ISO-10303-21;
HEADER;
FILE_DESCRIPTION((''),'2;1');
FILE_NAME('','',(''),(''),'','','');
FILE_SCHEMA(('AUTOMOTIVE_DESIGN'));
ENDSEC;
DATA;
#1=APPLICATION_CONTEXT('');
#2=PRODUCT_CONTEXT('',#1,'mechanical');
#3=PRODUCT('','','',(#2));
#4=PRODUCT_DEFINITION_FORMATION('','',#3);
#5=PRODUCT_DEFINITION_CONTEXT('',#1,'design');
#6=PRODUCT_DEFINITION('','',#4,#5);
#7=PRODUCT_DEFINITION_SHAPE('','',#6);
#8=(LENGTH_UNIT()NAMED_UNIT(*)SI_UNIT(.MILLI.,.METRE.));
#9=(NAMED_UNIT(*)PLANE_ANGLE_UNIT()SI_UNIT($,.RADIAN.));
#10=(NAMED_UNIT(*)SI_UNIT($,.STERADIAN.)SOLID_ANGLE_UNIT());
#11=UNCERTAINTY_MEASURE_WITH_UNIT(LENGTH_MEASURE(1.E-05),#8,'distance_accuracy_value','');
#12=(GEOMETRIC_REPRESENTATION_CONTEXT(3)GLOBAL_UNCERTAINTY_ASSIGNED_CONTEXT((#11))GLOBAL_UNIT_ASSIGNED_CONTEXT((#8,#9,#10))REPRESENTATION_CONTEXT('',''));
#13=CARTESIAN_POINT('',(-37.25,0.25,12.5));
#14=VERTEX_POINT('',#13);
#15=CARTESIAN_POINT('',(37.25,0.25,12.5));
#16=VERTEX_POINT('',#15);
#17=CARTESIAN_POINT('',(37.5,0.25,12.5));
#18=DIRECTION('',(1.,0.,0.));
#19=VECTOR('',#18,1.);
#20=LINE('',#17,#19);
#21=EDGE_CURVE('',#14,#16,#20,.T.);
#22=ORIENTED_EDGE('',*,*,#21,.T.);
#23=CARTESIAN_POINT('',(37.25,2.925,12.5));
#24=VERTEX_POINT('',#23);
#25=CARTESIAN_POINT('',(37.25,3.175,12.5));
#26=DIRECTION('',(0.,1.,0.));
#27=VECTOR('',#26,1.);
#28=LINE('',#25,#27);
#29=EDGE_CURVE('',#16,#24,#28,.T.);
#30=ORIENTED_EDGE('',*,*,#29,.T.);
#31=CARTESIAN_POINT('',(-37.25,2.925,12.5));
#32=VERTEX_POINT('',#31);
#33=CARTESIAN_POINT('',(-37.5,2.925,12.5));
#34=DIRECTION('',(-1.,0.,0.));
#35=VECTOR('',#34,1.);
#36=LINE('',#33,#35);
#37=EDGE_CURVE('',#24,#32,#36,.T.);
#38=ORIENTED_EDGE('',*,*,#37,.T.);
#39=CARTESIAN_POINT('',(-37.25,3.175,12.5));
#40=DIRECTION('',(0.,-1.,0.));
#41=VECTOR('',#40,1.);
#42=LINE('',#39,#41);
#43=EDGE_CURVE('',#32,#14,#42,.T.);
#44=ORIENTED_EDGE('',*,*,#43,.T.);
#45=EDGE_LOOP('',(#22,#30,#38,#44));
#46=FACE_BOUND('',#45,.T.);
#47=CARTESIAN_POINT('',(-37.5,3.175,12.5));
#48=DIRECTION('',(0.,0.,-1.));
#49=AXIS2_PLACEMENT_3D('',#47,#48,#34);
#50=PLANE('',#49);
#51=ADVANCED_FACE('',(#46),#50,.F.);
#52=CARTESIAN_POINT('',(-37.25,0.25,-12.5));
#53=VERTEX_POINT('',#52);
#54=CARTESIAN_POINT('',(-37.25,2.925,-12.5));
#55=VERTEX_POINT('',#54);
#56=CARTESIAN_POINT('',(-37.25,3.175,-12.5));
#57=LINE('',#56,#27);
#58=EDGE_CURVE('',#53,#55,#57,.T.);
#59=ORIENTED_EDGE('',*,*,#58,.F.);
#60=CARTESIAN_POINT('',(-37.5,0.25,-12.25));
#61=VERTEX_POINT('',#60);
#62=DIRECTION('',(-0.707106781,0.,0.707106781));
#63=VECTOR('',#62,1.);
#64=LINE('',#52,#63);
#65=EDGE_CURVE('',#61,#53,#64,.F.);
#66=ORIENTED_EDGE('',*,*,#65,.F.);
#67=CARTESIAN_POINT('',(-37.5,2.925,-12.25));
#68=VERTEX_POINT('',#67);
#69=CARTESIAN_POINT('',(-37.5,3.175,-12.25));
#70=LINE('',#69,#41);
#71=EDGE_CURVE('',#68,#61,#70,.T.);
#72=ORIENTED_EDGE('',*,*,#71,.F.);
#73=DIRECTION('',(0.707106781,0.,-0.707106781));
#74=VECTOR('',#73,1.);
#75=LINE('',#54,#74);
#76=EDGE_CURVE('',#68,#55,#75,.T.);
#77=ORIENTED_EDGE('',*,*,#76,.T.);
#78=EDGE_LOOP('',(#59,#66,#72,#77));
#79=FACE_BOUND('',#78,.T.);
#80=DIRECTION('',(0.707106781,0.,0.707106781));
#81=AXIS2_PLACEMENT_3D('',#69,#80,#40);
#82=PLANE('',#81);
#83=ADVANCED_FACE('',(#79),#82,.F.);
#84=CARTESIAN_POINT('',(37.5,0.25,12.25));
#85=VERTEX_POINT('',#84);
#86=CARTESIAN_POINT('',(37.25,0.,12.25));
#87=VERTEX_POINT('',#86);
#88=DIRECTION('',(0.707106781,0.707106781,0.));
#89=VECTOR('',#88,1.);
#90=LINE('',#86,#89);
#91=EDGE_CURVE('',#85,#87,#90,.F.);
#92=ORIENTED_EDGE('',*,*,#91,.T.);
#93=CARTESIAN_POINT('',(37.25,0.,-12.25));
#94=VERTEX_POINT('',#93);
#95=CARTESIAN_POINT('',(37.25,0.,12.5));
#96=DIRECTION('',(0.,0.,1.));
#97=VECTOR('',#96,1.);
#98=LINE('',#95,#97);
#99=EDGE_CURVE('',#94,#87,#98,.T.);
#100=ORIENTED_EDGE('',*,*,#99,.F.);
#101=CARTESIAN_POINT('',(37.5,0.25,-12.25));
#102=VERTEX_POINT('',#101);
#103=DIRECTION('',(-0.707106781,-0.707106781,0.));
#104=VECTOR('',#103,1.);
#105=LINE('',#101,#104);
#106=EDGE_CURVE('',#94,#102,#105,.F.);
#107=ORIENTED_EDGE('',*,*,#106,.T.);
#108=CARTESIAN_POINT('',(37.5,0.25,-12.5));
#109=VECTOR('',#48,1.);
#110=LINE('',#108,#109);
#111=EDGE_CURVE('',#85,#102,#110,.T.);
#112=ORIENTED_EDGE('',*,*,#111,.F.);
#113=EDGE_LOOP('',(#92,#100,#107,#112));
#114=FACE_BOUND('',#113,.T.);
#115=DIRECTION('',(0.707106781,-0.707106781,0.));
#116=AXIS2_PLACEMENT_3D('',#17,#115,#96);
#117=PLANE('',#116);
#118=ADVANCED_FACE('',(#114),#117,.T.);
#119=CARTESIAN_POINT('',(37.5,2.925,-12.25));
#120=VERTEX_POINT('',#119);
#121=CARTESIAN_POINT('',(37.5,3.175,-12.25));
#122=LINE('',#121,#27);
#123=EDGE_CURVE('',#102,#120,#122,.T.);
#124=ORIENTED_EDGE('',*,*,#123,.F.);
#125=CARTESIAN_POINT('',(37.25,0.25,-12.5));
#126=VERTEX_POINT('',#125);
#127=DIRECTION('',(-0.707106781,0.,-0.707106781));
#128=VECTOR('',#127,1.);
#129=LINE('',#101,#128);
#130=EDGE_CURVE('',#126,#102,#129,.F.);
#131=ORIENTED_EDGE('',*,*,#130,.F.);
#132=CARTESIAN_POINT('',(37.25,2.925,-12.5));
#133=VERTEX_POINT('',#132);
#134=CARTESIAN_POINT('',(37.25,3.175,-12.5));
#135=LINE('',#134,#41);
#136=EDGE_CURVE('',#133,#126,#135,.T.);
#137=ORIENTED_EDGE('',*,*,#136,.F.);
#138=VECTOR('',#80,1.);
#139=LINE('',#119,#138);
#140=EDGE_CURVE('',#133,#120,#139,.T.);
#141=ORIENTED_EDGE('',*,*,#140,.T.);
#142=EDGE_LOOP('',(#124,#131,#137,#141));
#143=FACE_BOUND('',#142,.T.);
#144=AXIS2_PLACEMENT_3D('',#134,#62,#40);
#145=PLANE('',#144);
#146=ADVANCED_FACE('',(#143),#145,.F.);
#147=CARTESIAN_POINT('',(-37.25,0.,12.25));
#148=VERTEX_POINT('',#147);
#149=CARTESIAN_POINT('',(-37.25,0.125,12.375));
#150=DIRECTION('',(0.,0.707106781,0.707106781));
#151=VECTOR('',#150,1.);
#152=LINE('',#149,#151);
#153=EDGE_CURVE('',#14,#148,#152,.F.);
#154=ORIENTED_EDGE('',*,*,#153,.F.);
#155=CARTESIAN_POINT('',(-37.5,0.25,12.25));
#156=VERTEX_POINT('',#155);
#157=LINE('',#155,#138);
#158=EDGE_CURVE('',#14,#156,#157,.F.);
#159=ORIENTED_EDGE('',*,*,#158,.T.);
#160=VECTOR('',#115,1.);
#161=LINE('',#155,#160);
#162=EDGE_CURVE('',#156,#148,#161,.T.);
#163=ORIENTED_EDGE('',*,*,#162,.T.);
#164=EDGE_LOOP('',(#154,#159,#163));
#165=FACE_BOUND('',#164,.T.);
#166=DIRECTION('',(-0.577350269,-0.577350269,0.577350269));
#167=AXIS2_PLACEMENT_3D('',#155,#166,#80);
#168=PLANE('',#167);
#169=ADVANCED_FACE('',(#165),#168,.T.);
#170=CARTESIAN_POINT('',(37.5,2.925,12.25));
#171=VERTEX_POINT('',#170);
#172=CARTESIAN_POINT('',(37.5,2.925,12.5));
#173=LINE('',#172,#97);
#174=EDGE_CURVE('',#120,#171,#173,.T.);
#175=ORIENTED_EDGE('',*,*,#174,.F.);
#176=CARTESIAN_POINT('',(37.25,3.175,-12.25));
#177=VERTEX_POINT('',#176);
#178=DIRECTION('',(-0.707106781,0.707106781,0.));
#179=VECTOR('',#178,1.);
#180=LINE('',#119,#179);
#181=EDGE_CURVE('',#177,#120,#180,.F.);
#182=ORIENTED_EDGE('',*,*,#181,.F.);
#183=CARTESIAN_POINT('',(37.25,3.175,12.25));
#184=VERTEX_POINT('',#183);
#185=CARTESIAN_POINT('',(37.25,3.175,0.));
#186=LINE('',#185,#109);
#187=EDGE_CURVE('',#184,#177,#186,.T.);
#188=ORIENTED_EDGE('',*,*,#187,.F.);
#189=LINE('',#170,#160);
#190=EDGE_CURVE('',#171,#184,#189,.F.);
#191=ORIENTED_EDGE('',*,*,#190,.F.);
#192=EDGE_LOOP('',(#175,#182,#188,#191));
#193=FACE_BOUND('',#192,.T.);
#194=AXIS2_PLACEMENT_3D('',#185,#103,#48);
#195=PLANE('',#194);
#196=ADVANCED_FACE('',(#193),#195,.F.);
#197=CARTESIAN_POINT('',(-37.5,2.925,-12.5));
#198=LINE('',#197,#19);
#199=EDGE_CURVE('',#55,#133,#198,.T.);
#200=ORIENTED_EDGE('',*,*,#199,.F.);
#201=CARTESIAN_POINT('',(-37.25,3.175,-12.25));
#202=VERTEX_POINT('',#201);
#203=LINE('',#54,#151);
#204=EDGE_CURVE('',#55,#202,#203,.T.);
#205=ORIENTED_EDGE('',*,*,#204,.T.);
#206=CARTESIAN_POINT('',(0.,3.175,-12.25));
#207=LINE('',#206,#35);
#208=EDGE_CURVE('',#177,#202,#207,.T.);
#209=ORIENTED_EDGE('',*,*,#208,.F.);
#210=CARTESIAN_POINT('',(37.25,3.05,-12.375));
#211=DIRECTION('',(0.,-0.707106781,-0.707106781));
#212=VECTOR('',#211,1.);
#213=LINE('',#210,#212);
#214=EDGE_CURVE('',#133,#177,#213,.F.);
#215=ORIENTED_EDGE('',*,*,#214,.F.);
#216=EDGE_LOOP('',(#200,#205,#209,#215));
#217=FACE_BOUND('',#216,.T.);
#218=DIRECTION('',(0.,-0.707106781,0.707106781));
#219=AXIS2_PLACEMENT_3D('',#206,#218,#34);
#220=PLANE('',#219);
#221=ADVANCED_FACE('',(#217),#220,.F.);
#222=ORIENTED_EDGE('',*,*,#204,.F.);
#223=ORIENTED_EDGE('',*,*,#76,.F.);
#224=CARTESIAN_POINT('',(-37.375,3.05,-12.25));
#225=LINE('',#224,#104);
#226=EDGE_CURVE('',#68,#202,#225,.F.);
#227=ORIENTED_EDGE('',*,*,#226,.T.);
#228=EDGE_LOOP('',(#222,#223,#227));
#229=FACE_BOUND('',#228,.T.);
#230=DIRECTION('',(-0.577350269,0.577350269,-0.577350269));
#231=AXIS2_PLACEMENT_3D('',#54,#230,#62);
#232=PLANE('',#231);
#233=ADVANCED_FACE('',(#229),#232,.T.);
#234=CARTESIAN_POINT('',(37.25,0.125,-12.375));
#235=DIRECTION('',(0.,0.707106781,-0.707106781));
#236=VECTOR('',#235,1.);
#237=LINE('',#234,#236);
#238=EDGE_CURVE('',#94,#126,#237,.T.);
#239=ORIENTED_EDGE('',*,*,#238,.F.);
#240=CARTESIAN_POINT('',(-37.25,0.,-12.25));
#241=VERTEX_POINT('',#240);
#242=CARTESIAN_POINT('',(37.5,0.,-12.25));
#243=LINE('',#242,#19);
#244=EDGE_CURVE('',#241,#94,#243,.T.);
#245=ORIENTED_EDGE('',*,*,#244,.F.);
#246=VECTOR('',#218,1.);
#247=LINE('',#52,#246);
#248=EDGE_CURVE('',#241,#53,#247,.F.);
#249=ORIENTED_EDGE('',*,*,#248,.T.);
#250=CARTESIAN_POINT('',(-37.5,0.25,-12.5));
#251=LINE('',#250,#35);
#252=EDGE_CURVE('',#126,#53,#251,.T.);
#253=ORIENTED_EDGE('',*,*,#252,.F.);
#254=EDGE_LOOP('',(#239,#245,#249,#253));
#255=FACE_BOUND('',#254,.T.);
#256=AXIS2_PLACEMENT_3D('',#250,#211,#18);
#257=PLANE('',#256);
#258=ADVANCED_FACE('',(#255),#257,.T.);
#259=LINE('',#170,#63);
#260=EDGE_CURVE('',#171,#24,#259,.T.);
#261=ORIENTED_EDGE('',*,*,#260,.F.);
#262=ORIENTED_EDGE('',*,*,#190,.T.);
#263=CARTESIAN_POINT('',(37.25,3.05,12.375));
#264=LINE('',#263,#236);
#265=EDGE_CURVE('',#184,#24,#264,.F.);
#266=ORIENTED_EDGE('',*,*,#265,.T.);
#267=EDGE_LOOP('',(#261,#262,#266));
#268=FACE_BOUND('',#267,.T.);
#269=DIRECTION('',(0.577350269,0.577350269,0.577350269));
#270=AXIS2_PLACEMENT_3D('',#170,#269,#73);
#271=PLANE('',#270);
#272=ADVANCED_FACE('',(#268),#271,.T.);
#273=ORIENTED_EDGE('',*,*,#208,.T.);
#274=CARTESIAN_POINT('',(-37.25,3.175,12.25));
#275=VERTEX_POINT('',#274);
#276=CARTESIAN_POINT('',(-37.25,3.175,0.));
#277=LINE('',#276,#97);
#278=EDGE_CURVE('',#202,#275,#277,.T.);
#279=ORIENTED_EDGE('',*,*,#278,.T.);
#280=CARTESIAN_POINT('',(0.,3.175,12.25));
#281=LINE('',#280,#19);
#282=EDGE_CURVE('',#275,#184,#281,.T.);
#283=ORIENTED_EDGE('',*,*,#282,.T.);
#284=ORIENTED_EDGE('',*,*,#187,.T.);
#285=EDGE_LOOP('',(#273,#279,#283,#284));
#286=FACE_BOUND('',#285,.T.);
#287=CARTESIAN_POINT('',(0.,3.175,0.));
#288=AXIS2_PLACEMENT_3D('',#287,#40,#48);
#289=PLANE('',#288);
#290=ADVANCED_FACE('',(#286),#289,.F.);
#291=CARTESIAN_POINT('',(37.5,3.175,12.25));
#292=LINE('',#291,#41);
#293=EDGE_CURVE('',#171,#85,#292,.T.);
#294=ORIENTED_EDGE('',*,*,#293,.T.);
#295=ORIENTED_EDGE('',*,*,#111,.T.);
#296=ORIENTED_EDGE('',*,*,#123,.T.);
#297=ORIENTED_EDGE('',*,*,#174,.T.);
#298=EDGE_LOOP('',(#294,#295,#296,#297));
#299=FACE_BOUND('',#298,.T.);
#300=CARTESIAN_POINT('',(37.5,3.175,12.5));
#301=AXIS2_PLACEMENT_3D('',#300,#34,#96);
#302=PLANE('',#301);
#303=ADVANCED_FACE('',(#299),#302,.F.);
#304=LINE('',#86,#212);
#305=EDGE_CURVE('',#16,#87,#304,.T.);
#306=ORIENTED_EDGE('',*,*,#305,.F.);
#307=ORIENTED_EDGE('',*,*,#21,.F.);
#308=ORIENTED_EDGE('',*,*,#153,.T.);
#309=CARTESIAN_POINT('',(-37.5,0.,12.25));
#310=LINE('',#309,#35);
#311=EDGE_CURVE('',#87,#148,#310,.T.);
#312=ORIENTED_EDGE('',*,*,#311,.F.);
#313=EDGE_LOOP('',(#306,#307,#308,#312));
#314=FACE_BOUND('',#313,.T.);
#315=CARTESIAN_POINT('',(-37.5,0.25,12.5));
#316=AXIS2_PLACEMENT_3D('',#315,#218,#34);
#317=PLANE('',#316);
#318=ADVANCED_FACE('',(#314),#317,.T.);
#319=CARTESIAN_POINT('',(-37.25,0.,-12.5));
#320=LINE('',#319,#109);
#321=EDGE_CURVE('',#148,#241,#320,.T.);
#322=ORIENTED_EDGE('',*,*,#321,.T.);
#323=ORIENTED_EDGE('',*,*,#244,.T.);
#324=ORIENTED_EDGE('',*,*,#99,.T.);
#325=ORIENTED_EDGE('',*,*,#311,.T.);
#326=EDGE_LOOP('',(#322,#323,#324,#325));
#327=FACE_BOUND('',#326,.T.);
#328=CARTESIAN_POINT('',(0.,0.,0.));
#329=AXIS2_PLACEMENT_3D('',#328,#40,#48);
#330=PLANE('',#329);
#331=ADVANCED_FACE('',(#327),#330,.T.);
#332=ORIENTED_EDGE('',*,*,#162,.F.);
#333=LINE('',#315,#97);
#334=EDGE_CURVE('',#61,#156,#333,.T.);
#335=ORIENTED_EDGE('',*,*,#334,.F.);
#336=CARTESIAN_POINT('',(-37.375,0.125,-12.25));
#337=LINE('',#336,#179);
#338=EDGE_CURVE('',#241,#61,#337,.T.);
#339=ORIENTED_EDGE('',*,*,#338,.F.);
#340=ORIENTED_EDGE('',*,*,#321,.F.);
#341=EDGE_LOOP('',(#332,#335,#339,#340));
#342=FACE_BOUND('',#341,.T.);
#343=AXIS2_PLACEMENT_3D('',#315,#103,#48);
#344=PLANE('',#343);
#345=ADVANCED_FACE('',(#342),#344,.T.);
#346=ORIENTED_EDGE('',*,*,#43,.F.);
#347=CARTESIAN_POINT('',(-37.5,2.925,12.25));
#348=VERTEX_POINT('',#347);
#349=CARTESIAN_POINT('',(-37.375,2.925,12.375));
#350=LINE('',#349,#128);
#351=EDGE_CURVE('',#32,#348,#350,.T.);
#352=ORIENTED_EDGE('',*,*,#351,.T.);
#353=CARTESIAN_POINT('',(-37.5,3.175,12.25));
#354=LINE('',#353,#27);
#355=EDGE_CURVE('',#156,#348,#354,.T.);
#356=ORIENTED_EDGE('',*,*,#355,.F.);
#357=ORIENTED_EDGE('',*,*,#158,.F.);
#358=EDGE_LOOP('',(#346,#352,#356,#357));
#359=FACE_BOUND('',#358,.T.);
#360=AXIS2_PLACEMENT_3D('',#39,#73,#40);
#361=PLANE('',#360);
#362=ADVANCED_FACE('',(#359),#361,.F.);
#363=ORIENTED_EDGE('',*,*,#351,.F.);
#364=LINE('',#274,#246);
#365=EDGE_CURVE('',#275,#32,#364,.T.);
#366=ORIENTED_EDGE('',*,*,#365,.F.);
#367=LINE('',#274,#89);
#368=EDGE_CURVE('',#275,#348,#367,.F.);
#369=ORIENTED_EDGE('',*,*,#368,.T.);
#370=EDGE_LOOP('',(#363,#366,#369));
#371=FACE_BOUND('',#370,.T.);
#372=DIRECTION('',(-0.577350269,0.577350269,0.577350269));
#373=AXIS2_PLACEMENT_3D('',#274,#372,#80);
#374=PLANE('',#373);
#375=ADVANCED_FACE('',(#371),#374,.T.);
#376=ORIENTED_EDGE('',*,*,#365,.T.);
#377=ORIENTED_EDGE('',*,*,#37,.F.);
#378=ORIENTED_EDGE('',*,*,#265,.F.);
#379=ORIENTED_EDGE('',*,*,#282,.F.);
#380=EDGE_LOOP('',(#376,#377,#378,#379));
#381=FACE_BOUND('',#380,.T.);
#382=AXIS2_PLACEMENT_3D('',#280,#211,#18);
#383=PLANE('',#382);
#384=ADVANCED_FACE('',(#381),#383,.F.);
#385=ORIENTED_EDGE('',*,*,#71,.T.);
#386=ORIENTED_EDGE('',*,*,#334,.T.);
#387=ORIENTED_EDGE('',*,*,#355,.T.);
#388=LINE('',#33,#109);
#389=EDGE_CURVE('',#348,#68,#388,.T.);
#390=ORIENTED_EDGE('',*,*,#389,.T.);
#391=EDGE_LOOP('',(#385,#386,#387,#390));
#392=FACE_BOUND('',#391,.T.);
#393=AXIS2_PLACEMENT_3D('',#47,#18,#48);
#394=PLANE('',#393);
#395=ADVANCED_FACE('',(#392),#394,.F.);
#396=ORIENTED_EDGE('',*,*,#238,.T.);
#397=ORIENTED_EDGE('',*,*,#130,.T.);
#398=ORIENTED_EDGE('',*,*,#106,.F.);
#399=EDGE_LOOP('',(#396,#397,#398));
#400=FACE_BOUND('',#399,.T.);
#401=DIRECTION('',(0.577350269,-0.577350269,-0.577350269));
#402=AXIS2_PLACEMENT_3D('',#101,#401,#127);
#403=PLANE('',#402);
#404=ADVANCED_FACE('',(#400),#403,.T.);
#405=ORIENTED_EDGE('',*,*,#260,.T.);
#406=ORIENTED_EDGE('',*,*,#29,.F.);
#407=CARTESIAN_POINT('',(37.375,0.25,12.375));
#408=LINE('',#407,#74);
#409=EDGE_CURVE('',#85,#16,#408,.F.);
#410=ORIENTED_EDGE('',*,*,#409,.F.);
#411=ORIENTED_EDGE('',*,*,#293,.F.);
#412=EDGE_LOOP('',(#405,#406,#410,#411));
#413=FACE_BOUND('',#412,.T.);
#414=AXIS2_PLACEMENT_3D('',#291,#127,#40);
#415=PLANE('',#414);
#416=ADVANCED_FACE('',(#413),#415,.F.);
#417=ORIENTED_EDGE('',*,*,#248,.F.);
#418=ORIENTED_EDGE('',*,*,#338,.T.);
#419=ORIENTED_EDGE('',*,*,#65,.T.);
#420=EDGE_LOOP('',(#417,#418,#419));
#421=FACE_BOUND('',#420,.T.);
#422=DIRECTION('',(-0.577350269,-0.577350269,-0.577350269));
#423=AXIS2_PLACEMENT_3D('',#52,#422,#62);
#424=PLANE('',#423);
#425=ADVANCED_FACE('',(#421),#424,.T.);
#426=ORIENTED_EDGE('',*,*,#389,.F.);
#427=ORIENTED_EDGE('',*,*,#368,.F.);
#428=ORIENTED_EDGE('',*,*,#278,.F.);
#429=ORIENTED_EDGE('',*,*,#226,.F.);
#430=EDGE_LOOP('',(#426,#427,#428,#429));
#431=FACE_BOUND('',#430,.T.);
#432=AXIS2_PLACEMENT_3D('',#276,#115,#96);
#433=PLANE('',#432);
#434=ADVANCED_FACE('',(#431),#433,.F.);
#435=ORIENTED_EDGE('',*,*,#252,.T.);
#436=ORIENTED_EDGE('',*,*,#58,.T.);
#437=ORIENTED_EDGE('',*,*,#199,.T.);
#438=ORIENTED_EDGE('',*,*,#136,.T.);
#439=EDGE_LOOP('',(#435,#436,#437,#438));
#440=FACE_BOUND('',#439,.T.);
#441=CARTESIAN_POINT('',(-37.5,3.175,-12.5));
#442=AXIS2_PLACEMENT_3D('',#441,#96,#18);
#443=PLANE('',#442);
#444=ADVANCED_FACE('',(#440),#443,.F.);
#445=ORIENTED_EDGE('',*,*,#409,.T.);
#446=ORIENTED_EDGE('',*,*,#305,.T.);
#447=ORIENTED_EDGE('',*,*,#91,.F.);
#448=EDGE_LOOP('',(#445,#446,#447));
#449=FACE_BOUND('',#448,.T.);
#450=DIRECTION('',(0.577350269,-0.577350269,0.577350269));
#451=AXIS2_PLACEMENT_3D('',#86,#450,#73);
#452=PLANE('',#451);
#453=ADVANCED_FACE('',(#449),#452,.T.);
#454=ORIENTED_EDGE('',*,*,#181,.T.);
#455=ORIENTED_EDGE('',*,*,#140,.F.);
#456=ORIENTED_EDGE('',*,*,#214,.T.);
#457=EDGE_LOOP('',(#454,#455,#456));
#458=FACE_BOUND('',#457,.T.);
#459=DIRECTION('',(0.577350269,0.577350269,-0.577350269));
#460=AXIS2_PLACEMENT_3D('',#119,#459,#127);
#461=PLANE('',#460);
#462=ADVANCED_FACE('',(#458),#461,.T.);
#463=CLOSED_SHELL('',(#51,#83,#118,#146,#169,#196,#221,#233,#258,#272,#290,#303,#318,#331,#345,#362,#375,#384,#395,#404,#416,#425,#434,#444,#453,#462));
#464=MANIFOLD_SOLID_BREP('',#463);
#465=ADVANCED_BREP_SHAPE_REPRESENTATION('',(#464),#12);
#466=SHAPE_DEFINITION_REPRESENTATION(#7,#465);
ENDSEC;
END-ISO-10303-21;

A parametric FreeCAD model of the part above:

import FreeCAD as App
import Part
import Sketcher


def add_polygon(sketch, points):
    """Adds a closed chain of lines whose ends are joined by coincident constraints."""
    first, n = sketch.GeometryCount, len(points)
    for a, b in zip(points, points[1:] + points[:1]):
        sketch.addGeometry(Part.LineSegment(App.Vector(*a, 0), App.Vector(*b, 0)), False)
    for i in range(n):
        sketch.addConstraint(Sketcher.Constraint("Coincident", first + i, 2, first + (i + 1) % n, 1))

doc = App.newDocument("Part")
body = doc.addObject("PartDesign::Body", "Body")

# Sketch on XZ plane
sketch1 = body.newObject("Sketcher::SketchObject", "Sketch")
sketch1.AttachmentSupport = (doc.getObject("XZ_Plane"), [""])
sketch1.MapMode = "FlatFace"
add_polygon(sketch1, [(-38, -12), (-38, 12), (38, 12), (38, -12)])  # lines 0-3
sketch1.addConstraint([
    Sketcher.Constraint("Vertical", 0),
    Sketcher.Constraint("Horizontal", 1),
    Sketcher.Constraint("Vertical", 2),
    Sketcher.Constraint("Horizontal", 3),
    Sketcher.Constraint("Symmetric", 0, 2, 2, 2, -1, 1),
    Sketcher.Constraint("DistanceX", 1, 1, 1, 2, 75.0),
    Sketcher.Constraint("DistanceY", 0, 1, 0, 2, 25.0),
])
pad1 = body.newObject("PartDesign::Pad", "Pad")
pad1.Profile = sketch1
pad1.Length = 3.175
pad1.Reversed = True
doc.recompute()

chamfer = body.newObject("PartDesign::Chamfer", "Chamfer")
chamfer.Base = (pad1, ["Edge1"])
chamfer.UseAllEdges = True
chamfer.Size = 0.25

doc.recompute()
